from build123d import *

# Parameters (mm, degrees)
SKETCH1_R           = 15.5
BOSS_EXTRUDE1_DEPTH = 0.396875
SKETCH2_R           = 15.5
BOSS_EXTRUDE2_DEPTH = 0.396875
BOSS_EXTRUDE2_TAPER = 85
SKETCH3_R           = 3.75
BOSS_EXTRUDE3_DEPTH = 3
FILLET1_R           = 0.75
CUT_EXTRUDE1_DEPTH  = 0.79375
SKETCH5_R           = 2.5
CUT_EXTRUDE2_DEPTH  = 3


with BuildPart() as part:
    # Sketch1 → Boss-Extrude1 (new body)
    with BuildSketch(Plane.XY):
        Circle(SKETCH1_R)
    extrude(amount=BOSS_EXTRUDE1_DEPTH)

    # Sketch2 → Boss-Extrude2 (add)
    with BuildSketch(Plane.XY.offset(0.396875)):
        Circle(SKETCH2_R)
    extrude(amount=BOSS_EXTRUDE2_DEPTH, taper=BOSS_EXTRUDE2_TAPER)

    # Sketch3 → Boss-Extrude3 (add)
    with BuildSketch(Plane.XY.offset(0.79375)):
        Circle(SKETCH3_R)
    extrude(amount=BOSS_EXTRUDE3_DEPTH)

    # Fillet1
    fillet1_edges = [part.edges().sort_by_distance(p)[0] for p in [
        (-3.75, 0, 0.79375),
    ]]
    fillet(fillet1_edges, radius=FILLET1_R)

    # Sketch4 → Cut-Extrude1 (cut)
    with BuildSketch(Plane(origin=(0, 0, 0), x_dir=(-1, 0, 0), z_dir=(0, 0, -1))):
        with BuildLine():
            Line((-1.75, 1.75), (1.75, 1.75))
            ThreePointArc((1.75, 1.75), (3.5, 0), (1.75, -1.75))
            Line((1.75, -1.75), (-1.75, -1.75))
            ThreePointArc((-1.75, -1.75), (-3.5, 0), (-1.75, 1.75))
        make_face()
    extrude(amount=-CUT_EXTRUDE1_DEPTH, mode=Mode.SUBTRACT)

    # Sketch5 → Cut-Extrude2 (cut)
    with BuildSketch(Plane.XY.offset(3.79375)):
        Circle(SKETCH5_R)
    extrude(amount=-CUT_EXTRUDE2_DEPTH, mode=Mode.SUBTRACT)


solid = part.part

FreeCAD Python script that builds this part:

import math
import FreeCAD as App
import Part
import Sketcher


def edges_at(feature, points):
    """Names of the edges that pass closest to the given points."""
    edges = feature.Shape.Edges
    near = lambda p: min(range(len(edges)), key=lambda i: edges[i].distToShape(Part.Vertex(*p))[0])
    return sorted({f"Edge{near(p) + 1}" for p in points})

doc = App.newDocument("Part")
body = doc.addObject("PartDesign::Body", "Body")

sketch1 = body.newObject("Sketcher::SketchObject", "Sketch")
sketch1.AttachmentSupport = (doc.getObject("XY_Plane"), [""])
sketch1.MapMode = "FlatFace"
sketch1.addGeometry(Part.Circle(App.Vector(0, 0, 0), App.Vector(0, 0, 1), 16), False)
sketch1.addConstraint([
    Sketcher.Constraint("Coincident", 0, 3, -1, 1),
    Sketcher.Constraint("Diameter", 0, 31.0),
])
pad1 = body.newObject("PartDesign::Pad", "Pad")
pad1.Profile = sketch1
pad1.Length = 0.396875

sketch2 = body.newObject("Sketcher::SketchObject", "Sketch001")
sketch2.AttachmentSupport = (doc.getObject("XY_Plane"), [""])
sketch2.MapMode = "FlatFace"
sketch2.AttachmentOffset = App.Placement(App.Vector(0, 0, 0.396875), App.Rotation())
sketch2.addGeometry(Part.Circle(App.Vector(0, 0, 0), App.Vector(0, 0, 1), 16), False)
sketch2.addConstraint([
    Sketcher.Constraint("Coincident", 0, 3, -1, 1),
    Sketcher.Constraint("Diameter", 0, 31.0),
])
pad2 = body.newObject("PartDesign::Pad", "Pad001")
pad2.Profile = sketch2
pad2.Length = 0.396875
pad2.TaperAngle = -85

sketch3 = body.newObject("Sketcher::SketchObject", "Sketch002")
sketch3.AttachmentSupport = (doc.getObject("XY_Plane"), [""])
sketch3.MapMode = "FlatFace"
sketch3.AttachmentOffset = App.Placement(App.Vector(0, 0, 0.79375), App.Rotation())
sketch3.addGeometry(Part.Circle(App.Vector(0, 0, 0), App.Vector(0, 0, 1), 3.8), False)
sketch3.addConstraint([
    Sketcher.Constraint("Coincident", 0, 3, -1, 1),
    Sketcher.Constraint("Diameter", 0, 7.5),
])
pad3 = body.newObject("PartDesign::Pad", "Pad002")
pad3.Profile = sketch3
pad3.Length = 3
doc.recompute()

fillet = body.newObject("PartDesign::Fillet", "Fillet")
fillet.Base = (pad3, edges_at(pad3, [(-3.75, 0, 0.794)]))
fillet.Radius = 0.75

sketch4 = body.newObject("Sketcher::SketchObject", "Sketch003")
sketch4.AttachmentSupport = (doc.getObject("XY_Plane"), [""])
sketch4.MapMode = "FlatFace"
sketch4.addGeometry([
    Part.LineSegment(App.Vector(-1.8, 1.8, 0), App.Vector(1.8, 1.8, 0)),
    Part.ArcOfCircle(Part.Circle(App.Vector(1.8, 0, 0), App.Vector(0, 0, 1), 1.8), math.radians(-90), math.radians(90)),
    Part.LineSegment(App.Vector(1.8, -1.8, 0), App.Vector(-1.8, -1.8, 0)),
    Part.ArcOfCircle(Part.Circle(App.Vector(-1.8, 0, 0), App.Vector(0, 0, 1), 1.8), math.radians(90), math.radians(270)),
], False)
sketch4.addConstraint([
    Sketcher.Constraint("Tangent", 0, 2, 1, 2),
    Sketcher.Constraint("Tangent", 1, 1, 2, 1),
    Sketcher.Constraint("Tangent", 2, 2, 3, 2),
    Sketcher.Constraint("Tangent", 3, 1, 0, 1),
    Sketcher.Constraint("Horizontal", 0),
    Sketcher.Constraint("Horizontal", 2),
    Sketcher.Constraint("Symmetric", 1, 3, 3, 3, -1, 1),
    Sketcher.Constraint("Radius", 1, 1.75),
    Sketcher.Constraint("DistanceX", 0, 1, 0, 2, 3.5),
])
pocket1 = body.newObject("PartDesign::Pocket", "Pocket")
pocket1.Profile = sketch4
pocket1.Length = 0.79375
pocket1.Reversed = True

sketch5 = body.newObject("Sketcher::SketchObject", "Sketch004")
sketch5.AttachmentSupport = (doc.getObject("XY_Plane"), [""])
sketch5.MapMode = "FlatFace"
sketch5.AttachmentOffset = App.Placement(App.Vector(0, 0, 3.79375), App.Rotation())
sketch5.addGeometry(Part.Circle(App.Vector(0, 0, 0), App.Vector(0, 0, 1), 2.5), False)
sketch5.addConstraint([
    Sketcher.Constraint("Coincident", 0, 3, -1, 1),
    Sketcher.Constraint("Diameter", 0, 5.0),
])
pocket2 = body.newObject("PartDesign::Pocket", "Pocket001")
pocket2.Profile = sketch5
pocket2.Length = 3

doc.recompute()
